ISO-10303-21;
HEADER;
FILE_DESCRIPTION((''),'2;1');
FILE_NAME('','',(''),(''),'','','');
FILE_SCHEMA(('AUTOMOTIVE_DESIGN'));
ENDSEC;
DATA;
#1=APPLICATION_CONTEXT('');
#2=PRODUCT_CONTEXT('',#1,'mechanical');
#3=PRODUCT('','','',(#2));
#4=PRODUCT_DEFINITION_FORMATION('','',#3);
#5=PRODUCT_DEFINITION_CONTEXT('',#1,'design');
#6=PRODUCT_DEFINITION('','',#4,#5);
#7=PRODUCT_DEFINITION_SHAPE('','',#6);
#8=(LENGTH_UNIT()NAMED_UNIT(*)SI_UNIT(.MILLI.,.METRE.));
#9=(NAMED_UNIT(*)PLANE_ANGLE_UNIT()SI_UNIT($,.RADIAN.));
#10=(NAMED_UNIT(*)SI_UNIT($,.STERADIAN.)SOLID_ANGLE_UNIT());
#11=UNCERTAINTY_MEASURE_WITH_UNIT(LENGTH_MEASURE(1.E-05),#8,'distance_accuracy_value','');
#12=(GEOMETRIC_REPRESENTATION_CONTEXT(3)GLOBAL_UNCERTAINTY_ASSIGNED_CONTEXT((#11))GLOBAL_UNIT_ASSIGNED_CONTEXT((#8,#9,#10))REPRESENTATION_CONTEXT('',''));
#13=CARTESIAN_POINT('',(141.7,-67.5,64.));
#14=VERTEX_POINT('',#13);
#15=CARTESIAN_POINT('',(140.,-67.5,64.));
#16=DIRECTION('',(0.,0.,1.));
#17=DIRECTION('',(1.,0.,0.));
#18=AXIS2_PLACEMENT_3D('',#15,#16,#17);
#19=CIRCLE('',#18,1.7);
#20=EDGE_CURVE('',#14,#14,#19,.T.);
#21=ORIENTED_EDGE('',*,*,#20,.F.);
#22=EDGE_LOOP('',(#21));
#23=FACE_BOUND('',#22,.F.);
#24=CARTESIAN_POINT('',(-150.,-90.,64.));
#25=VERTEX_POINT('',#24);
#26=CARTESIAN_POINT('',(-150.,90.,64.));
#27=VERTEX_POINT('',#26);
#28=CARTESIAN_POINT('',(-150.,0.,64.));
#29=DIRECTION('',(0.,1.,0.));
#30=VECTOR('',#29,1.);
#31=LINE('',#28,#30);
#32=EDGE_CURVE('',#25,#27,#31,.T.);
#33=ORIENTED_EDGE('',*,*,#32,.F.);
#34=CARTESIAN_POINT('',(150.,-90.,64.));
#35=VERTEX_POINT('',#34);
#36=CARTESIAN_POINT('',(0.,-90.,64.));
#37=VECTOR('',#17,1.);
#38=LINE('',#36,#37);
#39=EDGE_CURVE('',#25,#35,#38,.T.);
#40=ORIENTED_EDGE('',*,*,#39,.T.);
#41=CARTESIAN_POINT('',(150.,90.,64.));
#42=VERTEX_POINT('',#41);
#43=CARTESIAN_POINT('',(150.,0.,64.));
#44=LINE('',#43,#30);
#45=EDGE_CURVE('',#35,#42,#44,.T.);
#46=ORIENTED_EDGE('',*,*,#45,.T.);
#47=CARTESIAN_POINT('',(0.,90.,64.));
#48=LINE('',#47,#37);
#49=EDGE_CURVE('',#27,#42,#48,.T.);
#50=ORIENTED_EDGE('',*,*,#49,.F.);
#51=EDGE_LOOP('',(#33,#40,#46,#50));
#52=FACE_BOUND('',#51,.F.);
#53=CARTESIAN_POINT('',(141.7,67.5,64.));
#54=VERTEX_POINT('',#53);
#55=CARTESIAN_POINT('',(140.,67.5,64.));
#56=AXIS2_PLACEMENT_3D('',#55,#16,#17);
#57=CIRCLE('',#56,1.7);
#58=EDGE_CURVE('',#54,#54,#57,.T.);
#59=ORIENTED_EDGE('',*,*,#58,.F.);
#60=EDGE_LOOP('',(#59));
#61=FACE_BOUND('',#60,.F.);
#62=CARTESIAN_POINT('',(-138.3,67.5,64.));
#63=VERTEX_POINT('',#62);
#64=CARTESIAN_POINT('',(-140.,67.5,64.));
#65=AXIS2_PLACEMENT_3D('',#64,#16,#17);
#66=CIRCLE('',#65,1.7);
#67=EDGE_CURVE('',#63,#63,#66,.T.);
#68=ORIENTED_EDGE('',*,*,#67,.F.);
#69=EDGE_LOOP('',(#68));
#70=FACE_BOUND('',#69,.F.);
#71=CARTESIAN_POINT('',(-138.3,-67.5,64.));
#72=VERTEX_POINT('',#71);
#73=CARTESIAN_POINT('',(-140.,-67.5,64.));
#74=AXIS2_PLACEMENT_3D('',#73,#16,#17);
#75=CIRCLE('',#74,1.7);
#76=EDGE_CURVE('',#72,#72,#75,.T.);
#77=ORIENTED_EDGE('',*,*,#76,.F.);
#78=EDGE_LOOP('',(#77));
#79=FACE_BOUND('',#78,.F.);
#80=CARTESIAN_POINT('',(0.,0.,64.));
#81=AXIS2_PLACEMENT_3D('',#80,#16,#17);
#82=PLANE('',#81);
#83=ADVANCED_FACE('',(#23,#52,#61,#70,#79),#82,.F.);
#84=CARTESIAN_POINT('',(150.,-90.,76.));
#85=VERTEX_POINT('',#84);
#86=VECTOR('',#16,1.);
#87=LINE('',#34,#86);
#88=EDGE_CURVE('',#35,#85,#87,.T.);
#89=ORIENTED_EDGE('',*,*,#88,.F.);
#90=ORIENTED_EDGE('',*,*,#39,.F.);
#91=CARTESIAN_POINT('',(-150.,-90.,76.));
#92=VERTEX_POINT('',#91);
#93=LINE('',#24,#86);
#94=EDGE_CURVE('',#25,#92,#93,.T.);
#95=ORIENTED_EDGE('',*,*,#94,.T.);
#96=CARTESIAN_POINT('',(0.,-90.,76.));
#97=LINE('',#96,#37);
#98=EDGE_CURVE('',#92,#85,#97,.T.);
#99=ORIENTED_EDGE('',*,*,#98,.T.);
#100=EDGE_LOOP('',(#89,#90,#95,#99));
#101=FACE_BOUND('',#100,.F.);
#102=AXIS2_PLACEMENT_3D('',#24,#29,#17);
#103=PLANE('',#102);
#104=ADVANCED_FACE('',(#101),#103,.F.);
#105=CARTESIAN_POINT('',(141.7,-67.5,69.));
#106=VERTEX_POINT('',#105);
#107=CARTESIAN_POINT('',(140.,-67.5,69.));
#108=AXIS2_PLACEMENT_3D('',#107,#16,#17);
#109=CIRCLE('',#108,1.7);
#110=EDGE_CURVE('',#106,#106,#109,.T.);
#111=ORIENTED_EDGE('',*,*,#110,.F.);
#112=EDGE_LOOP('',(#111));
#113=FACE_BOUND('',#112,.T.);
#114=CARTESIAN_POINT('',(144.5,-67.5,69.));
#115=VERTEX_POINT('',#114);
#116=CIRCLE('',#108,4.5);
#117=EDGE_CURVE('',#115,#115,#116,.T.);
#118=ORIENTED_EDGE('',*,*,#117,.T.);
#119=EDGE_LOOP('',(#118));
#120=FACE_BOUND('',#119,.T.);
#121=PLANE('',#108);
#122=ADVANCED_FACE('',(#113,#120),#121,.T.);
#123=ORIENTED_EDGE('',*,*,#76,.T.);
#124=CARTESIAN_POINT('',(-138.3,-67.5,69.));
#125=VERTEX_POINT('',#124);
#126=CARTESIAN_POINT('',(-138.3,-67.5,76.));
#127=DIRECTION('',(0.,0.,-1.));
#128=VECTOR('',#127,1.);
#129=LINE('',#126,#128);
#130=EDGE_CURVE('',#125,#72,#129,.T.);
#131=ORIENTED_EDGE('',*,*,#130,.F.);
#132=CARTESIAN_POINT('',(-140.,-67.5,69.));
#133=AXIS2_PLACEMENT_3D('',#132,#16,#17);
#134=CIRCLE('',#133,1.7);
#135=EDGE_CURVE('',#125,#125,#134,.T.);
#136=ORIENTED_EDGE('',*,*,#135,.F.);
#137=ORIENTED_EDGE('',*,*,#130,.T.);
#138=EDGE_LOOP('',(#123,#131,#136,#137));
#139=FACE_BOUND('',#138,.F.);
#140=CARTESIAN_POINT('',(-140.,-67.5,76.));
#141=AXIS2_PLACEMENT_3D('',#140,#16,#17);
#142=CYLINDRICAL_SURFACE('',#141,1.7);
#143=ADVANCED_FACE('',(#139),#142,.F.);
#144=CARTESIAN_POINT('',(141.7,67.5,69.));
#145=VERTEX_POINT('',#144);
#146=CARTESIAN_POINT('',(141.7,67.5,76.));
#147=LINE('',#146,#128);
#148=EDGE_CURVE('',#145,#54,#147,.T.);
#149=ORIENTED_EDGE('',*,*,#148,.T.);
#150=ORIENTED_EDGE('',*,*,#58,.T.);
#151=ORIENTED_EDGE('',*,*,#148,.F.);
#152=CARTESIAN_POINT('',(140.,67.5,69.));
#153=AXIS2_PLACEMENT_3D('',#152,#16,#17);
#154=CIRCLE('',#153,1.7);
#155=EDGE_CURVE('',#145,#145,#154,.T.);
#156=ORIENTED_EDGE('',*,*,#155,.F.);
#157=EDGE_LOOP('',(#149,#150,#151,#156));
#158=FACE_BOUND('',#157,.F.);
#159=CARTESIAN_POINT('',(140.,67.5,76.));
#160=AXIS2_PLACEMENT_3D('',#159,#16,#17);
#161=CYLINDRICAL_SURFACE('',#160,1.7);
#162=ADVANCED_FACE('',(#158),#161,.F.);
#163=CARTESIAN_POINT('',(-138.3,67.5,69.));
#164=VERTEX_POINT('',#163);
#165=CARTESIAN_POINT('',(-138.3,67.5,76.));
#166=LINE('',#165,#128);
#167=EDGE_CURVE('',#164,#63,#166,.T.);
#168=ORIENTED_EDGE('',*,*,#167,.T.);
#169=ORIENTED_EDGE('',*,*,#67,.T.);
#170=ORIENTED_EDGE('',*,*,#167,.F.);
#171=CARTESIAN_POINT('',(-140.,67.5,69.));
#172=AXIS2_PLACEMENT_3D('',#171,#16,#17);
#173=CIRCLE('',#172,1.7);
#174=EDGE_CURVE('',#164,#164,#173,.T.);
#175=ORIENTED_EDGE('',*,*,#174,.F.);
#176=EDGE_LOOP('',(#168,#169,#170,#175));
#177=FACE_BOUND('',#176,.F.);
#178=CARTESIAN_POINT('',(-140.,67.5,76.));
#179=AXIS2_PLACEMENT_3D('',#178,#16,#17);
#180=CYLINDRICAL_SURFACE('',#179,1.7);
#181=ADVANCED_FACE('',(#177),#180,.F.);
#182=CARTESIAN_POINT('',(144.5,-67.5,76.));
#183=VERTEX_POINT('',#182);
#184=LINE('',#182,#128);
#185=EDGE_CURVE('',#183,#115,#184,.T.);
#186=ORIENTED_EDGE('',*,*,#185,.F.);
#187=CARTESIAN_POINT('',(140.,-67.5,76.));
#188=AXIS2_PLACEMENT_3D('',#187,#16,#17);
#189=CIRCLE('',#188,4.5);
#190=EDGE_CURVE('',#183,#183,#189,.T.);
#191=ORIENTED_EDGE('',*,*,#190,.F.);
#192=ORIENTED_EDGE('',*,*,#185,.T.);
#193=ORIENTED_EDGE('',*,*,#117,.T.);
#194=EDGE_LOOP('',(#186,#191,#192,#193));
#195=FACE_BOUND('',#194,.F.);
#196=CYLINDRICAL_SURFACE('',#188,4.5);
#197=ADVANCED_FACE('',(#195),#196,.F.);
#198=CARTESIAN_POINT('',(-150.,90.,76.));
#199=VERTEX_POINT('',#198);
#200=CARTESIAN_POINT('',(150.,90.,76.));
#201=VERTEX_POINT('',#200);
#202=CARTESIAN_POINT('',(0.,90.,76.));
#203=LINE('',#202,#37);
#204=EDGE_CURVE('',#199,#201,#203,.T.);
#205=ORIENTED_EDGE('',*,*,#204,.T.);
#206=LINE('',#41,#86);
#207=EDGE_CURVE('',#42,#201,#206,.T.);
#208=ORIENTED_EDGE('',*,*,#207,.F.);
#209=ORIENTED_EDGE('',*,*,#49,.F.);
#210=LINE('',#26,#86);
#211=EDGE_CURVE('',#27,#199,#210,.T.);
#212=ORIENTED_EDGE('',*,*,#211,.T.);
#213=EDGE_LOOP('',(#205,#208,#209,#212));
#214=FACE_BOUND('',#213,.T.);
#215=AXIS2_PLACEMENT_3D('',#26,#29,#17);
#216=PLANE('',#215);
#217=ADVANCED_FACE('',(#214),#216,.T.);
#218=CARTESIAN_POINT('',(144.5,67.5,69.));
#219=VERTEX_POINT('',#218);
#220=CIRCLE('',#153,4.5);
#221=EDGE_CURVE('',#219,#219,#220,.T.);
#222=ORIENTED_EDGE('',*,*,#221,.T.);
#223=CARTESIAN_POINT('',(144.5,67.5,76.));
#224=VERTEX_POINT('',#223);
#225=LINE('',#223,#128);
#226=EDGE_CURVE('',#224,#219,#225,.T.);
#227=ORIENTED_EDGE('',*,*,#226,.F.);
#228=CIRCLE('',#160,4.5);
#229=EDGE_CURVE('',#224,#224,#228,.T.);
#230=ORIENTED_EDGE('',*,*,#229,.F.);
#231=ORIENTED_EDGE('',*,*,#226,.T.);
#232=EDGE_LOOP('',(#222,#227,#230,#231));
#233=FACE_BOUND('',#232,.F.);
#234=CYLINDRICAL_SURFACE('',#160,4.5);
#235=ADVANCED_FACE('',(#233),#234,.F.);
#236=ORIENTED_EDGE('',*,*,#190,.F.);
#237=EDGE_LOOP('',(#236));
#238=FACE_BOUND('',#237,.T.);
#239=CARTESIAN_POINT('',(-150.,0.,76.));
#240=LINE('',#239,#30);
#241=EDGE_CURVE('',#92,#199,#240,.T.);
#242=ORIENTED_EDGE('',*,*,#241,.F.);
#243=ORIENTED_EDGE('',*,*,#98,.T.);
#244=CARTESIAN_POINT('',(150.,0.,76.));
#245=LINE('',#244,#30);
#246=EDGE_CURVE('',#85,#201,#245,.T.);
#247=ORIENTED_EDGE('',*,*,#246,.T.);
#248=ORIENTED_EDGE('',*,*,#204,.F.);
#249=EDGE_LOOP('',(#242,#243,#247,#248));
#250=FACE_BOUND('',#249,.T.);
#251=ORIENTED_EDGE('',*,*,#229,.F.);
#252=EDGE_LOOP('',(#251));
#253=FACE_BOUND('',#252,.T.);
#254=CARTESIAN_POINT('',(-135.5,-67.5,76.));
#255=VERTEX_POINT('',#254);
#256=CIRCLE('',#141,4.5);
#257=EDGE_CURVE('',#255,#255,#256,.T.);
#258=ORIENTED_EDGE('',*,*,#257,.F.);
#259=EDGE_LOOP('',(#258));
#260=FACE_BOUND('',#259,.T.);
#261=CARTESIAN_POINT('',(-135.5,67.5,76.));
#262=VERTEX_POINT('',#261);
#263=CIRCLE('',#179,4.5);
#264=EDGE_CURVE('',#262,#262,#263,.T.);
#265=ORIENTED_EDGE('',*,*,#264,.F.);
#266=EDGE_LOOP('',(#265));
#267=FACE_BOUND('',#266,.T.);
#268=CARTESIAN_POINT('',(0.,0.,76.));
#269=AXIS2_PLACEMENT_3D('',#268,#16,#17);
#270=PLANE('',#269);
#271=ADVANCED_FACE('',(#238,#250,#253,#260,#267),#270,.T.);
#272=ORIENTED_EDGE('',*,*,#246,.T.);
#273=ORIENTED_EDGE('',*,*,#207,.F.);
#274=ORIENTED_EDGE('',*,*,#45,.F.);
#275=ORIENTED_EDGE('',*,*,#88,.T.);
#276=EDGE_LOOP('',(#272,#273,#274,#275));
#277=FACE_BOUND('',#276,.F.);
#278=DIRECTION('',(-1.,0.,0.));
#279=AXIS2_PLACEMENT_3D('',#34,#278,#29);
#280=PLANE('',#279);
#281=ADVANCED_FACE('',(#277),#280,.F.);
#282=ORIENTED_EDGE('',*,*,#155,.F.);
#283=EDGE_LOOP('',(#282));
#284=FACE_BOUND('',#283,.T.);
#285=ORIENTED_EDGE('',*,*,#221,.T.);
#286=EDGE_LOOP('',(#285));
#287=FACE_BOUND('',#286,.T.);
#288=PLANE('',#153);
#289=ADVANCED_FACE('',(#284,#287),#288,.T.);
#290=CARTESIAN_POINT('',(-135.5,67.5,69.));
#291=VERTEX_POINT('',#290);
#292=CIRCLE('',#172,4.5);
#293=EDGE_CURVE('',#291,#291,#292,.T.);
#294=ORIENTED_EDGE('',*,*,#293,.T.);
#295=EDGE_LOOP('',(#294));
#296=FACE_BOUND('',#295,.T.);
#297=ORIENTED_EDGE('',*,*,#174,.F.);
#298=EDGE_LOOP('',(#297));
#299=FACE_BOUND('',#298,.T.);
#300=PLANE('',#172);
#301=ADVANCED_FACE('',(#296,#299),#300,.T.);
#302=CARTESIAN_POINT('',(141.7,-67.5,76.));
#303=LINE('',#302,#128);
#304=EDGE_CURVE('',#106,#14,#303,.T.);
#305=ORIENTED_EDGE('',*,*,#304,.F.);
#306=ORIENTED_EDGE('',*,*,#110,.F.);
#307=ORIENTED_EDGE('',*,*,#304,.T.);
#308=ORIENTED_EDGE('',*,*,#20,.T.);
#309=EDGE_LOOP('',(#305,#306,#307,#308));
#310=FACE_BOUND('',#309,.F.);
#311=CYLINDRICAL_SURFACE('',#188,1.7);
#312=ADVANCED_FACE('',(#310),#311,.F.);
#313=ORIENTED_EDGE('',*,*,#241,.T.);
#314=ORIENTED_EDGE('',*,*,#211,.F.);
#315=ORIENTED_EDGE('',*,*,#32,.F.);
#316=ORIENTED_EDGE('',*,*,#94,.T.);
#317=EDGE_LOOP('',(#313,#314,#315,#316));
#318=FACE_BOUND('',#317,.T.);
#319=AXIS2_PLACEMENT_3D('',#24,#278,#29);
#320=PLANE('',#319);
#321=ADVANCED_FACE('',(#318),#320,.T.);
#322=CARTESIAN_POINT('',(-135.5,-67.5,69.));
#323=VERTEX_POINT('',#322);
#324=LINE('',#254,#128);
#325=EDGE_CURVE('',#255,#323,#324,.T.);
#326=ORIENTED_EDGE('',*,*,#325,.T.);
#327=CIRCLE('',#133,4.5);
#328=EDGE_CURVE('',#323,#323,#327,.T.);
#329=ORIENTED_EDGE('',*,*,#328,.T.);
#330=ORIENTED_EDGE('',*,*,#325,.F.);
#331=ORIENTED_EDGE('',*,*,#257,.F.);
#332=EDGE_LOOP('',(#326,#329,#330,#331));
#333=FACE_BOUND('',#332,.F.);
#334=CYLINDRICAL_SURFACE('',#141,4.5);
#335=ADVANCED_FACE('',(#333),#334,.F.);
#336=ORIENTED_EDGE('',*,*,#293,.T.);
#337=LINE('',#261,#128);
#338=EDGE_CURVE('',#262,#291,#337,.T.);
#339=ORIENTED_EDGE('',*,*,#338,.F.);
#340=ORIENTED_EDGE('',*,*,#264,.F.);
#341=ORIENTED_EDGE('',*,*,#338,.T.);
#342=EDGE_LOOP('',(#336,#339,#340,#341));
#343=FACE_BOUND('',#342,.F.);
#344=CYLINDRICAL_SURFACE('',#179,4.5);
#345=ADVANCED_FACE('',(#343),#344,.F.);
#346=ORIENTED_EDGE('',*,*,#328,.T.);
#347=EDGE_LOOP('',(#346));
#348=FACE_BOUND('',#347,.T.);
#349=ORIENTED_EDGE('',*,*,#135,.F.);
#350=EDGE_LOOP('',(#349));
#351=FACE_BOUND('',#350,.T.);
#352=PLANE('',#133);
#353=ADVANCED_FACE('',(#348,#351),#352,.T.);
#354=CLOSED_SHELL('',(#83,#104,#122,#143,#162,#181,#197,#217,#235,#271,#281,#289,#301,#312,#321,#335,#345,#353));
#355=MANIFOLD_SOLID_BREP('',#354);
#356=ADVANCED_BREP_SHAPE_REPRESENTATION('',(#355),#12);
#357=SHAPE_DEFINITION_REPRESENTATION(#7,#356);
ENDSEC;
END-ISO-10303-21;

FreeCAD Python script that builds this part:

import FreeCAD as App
import Part
import Sketcher

V = App.Vector
Q = App.Units.Quantity

doc = App.newDocument("Part")
body = doc.addObject("PartDesign::Body", "Body")

# Sketch on XY plane
sketch1 = body.newObject("Sketcher::SketchObject", "Sketch")
sketch1.AttachmentSupport = (doc.getObject("XY_Plane"), [""])
sketch1.MapMode = "FlatFace"
sketch1.addGeometry([
    Part.LineSegment(V(-150, 90, 0), V(-150, -90, 0)),
    Part.LineSegment(V(-150, -90, 0), V(150, -90, 0)),
    Part.LineSegment(V(150, -90, 0), V(150, 90, 0)),
    Part.LineSegment(V(150, 90, 0), V(-150, 90, 0)),
], False)
sketch1.addConstraint([
    Sketcher.Constraint("Coincident", 0, 2, 1, 1),
    Sketcher.Constraint("Coincident", 1, 2, 2, 1),
    Sketcher.Constraint("Coincident", 2, 2, 3, 1),
    Sketcher.Constraint("Coincident", 3, 2, 0, 1),
    Sketcher.Constraint("Vertical", 0),
    Sketcher.Constraint("Horizontal", 1),
    Sketcher.Constraint("Vertical", 2),
    Sketcher.Constraint("Horizontal", 3),
    Sketcher.Constraint("Symmetric", 0, 2, 2, 2, -1, 1),
    Sketcher.Constraint("DistanceX", 1, 1, 1, 2, Q("300 mm")),
    Sketcher.Constraint("DistanceY", 0, 2, 0, 1, Q("180 mm")),
])
pad1 = body.newObject("PartDesign::Pad", "Pad")
pad1.Profile = sketch1
pad1.Length = 12

# Sketch on XY plane
sketch2 = body.newObject("Sketcher::SketchObject", "Sketch001")
sketch2.AttachmentSupport = (doc.getObject("XY_Plane"), [""])
sketch2.MapMode = "FlatFace"
sketch2.AttachmentOffset = App.Placement(V(0, 0, 12), App.Rotation())
sketch2.addGeometry([
    Part.Circle(V(-140, 67.5, 0), V(0, 0, 1), 4.5),
    Part.Circle(V(-140, -67.5, 0), V(0, 0, 1), 4.5),
    Part.Circle(V(140, -67.5, 0), V(0, 0, 1), 4.5),
    Part.Circle(V(140, 67.5, 0), V(0, 0, 1), 4.5),
], False)
sketch2.addConstraint([
    Sketcher.Constraint("Equal", 0, 1),
    Sketcher.Constraint("Equal", 1, 2),
    Sketcher.Constraint("Equal", 2, 3),
    Sketcher.Constraint("Symmetric", 0, 3, 2, 3, -1, 1),
    Sketcher.Constraint("Symmetric", 1, 3, 3, 3, -1, 1),
    Sketcher.Constraint("Symmetric", 1, 3, 2, 3, -2),
    Sketcher.Constraint("Diameter", 0, Q("9 mm")),
    Sketcher.Constraint("DistanceX", 0, 3, -1, 1, Q("140 mm")),
    Sketcher.Constraint("DistanceY", 1, 3, 0, 3, Q("135 mm")),
])
pocket1 = body.newObject("PartDesign::Pocket", "Pocket")
pocket1.Profile = sketch2
pocket1.Length = 7

# Sketch on XY plane
sketch3 = body.newObject("Sketcher::SketchObject", "Sketch002")
sketch3.AttachmentSupport = (doc.getObject("XY_Plane"), [""])
sketch3.MapMode = "FlatFace"
sketch3.AttachmentOffset = App.Placement(V(0, 0, 12), App.Rotation())
sketch3.addGeometry([
    Part.Circle(V(-140, 67.5, 0), V(0, 0, 1), 1.7),
    Part.Circle(V(-140, -67.5, 0), V(0, 0, 1), 1.7),
    Part.Circle(V(140, -67.5, 0), V(0, 0, 1), 1.7),
    Part.Circle(V(140, 67.5, 0), V(0, 0, 1), 1.7),
], False)
sketch3.addConstraint([
    Sketcher.Constraint("Equal", 0, 1),
    Sketcher.Constraint("Equal", 1, 2),
    Sketcher.Constraint("Equal", 2, 3),
    Sketcher.Constraint("Symmetric", 0, 3, 2, 3, -1, 1),
    Sketcher.Constraint("Symmetric", 1, 3, 3, 3, -1, 1),
    Sketcher.Constraint("Symmetric", 1, 3, 2, 3, -2),
    Sketcher.Constraint("Diameter", 0, Q("3.4 mm")),
    Sketcher.Constraint("DistanceX", 0, 3, -1, 1, Q("140 mm")),
    Sketcher.Constraint("DistanceY", 1, 3, 0, 3, Q("135 mm")),
])
pocket2 = body.newObject("PartDesign::Pocket", "Pocket001")
pocket2.Profile = sketch3
pocket2.Type = "ThroughAll"
body2 = doc.addObject("PartDesign::Body", "Body001")
doc.recompute()

body.Placement = App.Placement(V(0, 0, 64), App.Rotation(V(0, 0, 1), 0))
boolean = body2.newObject("PartDesign::Boolean", "Boolean")
boolean.Type = "Fuse"
boolean.addObjects([body])

doc.recompute()
